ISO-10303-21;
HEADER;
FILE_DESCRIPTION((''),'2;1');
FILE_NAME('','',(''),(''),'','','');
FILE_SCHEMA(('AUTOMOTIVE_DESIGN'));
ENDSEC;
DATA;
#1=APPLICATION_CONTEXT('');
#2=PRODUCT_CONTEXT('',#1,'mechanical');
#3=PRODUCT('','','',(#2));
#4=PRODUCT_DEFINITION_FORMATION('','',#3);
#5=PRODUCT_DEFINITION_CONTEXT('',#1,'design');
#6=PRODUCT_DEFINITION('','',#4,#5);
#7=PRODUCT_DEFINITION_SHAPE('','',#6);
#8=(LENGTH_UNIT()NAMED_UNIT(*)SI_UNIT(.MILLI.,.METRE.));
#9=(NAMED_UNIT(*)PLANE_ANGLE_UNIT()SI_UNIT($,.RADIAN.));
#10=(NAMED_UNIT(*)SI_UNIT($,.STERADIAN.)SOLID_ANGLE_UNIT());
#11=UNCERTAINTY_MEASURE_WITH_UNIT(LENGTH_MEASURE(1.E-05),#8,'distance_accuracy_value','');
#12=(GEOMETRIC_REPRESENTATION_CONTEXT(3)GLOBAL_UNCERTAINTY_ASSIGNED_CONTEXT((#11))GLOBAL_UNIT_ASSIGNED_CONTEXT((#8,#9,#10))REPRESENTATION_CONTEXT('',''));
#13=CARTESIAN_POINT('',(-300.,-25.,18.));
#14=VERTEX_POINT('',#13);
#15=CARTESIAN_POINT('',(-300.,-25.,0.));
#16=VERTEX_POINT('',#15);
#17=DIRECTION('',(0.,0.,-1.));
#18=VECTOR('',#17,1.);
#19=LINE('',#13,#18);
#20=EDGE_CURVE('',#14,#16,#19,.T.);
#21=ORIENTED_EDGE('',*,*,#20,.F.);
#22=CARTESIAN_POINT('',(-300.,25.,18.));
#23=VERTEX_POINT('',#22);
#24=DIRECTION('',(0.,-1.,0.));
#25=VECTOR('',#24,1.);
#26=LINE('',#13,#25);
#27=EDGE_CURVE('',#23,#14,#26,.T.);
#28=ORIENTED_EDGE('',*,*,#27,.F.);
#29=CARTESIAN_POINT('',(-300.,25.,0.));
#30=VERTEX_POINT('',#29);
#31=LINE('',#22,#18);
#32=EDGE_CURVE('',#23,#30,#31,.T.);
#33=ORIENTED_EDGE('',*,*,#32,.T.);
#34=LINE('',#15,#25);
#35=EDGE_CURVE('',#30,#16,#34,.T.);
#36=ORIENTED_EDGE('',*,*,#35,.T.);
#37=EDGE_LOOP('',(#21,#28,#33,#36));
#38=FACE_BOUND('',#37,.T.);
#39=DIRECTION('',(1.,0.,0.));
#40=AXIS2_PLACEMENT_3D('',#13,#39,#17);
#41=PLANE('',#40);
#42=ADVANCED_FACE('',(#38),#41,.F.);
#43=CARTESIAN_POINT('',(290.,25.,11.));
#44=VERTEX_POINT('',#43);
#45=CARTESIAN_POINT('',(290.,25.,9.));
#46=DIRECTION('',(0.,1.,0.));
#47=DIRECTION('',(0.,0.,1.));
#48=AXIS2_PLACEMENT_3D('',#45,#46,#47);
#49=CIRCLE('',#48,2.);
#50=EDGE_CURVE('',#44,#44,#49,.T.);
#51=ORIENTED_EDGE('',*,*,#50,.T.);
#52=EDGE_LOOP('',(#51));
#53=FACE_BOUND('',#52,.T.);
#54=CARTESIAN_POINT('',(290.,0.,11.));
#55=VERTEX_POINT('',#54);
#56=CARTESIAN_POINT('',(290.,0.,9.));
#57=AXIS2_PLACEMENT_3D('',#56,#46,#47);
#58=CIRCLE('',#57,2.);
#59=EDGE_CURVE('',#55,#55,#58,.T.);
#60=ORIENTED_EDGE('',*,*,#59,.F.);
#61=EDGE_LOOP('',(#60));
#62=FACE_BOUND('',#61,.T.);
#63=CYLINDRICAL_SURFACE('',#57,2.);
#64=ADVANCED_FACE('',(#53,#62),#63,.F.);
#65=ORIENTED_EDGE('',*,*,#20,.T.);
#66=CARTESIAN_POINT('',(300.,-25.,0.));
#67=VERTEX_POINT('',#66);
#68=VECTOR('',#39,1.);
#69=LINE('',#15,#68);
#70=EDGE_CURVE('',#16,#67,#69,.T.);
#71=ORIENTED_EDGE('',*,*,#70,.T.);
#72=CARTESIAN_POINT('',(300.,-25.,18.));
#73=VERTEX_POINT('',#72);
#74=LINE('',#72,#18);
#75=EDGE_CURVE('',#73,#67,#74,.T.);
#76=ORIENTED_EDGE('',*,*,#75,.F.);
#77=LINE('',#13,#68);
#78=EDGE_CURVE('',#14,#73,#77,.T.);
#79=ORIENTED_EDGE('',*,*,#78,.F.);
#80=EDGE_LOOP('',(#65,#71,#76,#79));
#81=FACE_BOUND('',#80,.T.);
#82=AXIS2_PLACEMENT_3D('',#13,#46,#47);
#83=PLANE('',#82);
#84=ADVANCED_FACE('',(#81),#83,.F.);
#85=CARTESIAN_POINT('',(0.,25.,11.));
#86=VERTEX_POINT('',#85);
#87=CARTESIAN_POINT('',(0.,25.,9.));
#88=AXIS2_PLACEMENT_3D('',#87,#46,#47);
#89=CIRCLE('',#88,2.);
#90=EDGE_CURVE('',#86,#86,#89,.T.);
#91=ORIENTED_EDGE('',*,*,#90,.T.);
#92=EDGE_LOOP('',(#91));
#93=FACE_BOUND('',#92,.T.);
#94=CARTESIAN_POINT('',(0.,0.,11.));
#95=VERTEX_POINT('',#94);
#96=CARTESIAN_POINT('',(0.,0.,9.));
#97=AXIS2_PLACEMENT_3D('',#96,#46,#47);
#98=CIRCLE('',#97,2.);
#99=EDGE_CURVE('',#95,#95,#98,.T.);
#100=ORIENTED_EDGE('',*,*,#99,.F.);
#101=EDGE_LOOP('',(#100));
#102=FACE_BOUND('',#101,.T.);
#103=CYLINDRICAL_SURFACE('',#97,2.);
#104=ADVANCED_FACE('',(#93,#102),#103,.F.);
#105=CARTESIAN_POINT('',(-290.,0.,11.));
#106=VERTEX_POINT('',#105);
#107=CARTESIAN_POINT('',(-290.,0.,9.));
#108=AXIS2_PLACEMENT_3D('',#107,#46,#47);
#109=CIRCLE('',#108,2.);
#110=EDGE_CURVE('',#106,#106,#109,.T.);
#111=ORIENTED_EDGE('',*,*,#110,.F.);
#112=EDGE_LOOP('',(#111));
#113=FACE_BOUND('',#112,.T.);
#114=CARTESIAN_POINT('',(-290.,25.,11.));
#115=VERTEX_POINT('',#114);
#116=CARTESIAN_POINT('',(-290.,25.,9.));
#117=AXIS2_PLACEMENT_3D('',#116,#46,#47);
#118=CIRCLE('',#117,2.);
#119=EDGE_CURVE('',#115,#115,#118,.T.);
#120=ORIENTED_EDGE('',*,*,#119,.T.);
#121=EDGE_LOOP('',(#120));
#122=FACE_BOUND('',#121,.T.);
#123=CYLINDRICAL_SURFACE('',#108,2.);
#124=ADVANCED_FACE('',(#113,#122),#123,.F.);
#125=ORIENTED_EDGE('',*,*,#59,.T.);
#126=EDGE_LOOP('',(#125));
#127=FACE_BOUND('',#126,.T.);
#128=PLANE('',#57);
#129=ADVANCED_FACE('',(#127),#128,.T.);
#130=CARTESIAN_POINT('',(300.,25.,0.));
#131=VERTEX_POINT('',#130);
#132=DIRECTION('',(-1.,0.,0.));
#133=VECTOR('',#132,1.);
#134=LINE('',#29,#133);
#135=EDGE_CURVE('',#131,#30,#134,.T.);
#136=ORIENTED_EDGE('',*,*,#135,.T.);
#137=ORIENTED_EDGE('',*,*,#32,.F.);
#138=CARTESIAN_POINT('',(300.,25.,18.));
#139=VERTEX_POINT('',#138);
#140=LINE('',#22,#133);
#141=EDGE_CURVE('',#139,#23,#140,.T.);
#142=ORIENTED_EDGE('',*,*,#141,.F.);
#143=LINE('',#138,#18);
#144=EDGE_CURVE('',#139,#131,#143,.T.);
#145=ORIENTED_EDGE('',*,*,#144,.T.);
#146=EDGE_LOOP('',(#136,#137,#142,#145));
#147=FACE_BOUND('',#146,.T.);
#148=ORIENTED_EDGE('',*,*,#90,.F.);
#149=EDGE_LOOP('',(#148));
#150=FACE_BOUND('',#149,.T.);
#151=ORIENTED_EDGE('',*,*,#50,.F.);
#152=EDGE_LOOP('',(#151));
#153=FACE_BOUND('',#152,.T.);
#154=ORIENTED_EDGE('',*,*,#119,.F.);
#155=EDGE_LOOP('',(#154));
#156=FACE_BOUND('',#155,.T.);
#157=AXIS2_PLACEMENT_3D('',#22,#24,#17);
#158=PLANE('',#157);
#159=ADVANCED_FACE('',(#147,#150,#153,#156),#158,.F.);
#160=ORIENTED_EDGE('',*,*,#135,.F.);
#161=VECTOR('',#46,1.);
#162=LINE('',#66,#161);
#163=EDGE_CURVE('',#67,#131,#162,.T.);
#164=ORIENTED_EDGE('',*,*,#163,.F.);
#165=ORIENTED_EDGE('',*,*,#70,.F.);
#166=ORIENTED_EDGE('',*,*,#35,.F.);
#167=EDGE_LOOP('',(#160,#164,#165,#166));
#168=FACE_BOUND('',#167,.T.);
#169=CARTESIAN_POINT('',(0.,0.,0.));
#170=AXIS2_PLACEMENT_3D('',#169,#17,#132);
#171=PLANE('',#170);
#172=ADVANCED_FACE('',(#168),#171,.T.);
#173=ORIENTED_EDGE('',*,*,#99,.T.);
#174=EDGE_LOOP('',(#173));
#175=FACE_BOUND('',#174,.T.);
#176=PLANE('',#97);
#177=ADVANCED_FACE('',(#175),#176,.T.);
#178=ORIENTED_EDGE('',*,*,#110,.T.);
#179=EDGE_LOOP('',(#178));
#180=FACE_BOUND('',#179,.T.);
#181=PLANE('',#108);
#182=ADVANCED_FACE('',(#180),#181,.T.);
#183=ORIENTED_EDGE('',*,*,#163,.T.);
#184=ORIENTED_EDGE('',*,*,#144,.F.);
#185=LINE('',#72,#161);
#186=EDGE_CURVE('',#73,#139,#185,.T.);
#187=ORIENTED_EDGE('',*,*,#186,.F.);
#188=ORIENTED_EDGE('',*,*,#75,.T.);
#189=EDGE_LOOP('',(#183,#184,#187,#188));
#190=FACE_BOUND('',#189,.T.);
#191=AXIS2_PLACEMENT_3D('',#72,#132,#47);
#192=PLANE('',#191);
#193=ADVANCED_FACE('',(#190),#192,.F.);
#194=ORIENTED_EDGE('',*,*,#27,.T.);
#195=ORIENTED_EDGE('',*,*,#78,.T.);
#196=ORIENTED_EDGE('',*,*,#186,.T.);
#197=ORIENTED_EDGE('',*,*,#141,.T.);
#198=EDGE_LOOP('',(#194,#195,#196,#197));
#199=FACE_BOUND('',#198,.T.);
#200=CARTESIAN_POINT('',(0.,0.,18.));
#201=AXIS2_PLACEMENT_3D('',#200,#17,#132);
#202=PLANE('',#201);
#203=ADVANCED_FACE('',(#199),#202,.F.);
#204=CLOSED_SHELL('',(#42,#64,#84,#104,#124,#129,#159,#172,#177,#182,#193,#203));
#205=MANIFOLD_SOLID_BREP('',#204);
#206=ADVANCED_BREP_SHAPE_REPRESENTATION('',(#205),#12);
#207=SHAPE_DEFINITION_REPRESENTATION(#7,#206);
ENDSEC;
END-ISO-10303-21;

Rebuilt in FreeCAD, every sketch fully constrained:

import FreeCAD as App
import Part
import Sketcher

doc = App.newDocument("Part")
body = doc.addObject("PartDesign::Body", "Body")

sketch1 = body.newObject("Sketcher::SketchObject", "Sketch")
sketch1.AttachmentSupport = (doc.getObject("XY_Plane"), [""])
sketch1.MapMode = "FlatFace"
sketch1.addGeometry([
    Part.LineSegment(App.Vector(-300, 25, 0), App.Vector(-300, -25, 0)),
    Part.LineSegment(App.Vector(-300, -25, 0), App.Vector(300, -25, 0)),
    Part.LineSegment(App.Vector(300, -25, 0), App.Vector(300, 25, 0)),
    Part.LineSegment(App.Vector(300, 25, 0), App.Vector(-300, 25, 0)),
], False)
sketch1.addConstraint([
    Sketcher.Constraint("Coincident", 0, 2, 1, 1),
    Sketcher.Constraint("Coincident", 1, 2, 2, 1),
    Sketcher.Constraint("Coincident", 2, 2, 3, 1),
    Sketcher.Constraint("Coincident", 3, 2, 0, 1),
    Sketcher.Constraint("Vertical", 0),
    Sketcher.Constraint("Horizontal", 1),
    Sketcher.Constraint("Vertical", 2),
    Sketcher.Constraint("Horizontal", 3),
    Sketcher.Constraint("Symmetric", 0, 2, 2, 2, -1, 1),
    Sketcher.Constraint("DistanceX", 1, 1, 1, 2, 600.0),
    Sketcher.Constraint("DistanceY", 0, 2, 0, 1, 50.0),
])
pad1 = body.newObject("PartDesign::Pad", "Pad")
pad1.Profile = sketch1
pad1.Length = 18

sketch2 = body.newObject("Sketcher::SketchObject", "Sketch001")
sketch2.AttachmentSupport = (doc.getObject("XZ_Plane"), [""])
sketch2.MapMode = "FlatFace"
sketch2.AttachmentOffset = App.Placement(App.Vector(0, 0, -25), App.Rotation())
sketch2.addGeometry([
    Part.Circle(App.Vector(-290, 9, 0), App.Vector(0, 0, 1), 2),
    Part.Circle(App.Vector(0, 9, 0), App.Vector(0, 0, 1), 2),
    Part.Circle(App.Vector(290, 9, 0), App.Vector(0, 0, 1), 2),
], False)
sketch2.addConstraint([
    Sketcher.Constraint("Equal", 0, 1),
    Sketcher.Constraint("Equal", 1, 2),
    Sketcher.Constraint("Symmetric", 0, 3, 2, 3, -2),
    Sketcher.Constraint("PointOnObject", 1, 3, -2),
    Sketcher.Constraint("Horizontal", 0, 3, 1, 3),
    Sketcher.Constraint("Diameter", 0, 4.0),
    Sketcher.Constraint("DistanceX", 0, 3, -1, 1, 290.0),
    Sketcher.Constraint("DistanceY", -1, 1, 0, 3, 9.0),
])
pocket1 = body.newObject("PartDesign::Pocket", "Pocket")
pocket1.Profile = sketch2
pocket1.Length = 25
pocket1.Reversed = True

doc.recompute()
